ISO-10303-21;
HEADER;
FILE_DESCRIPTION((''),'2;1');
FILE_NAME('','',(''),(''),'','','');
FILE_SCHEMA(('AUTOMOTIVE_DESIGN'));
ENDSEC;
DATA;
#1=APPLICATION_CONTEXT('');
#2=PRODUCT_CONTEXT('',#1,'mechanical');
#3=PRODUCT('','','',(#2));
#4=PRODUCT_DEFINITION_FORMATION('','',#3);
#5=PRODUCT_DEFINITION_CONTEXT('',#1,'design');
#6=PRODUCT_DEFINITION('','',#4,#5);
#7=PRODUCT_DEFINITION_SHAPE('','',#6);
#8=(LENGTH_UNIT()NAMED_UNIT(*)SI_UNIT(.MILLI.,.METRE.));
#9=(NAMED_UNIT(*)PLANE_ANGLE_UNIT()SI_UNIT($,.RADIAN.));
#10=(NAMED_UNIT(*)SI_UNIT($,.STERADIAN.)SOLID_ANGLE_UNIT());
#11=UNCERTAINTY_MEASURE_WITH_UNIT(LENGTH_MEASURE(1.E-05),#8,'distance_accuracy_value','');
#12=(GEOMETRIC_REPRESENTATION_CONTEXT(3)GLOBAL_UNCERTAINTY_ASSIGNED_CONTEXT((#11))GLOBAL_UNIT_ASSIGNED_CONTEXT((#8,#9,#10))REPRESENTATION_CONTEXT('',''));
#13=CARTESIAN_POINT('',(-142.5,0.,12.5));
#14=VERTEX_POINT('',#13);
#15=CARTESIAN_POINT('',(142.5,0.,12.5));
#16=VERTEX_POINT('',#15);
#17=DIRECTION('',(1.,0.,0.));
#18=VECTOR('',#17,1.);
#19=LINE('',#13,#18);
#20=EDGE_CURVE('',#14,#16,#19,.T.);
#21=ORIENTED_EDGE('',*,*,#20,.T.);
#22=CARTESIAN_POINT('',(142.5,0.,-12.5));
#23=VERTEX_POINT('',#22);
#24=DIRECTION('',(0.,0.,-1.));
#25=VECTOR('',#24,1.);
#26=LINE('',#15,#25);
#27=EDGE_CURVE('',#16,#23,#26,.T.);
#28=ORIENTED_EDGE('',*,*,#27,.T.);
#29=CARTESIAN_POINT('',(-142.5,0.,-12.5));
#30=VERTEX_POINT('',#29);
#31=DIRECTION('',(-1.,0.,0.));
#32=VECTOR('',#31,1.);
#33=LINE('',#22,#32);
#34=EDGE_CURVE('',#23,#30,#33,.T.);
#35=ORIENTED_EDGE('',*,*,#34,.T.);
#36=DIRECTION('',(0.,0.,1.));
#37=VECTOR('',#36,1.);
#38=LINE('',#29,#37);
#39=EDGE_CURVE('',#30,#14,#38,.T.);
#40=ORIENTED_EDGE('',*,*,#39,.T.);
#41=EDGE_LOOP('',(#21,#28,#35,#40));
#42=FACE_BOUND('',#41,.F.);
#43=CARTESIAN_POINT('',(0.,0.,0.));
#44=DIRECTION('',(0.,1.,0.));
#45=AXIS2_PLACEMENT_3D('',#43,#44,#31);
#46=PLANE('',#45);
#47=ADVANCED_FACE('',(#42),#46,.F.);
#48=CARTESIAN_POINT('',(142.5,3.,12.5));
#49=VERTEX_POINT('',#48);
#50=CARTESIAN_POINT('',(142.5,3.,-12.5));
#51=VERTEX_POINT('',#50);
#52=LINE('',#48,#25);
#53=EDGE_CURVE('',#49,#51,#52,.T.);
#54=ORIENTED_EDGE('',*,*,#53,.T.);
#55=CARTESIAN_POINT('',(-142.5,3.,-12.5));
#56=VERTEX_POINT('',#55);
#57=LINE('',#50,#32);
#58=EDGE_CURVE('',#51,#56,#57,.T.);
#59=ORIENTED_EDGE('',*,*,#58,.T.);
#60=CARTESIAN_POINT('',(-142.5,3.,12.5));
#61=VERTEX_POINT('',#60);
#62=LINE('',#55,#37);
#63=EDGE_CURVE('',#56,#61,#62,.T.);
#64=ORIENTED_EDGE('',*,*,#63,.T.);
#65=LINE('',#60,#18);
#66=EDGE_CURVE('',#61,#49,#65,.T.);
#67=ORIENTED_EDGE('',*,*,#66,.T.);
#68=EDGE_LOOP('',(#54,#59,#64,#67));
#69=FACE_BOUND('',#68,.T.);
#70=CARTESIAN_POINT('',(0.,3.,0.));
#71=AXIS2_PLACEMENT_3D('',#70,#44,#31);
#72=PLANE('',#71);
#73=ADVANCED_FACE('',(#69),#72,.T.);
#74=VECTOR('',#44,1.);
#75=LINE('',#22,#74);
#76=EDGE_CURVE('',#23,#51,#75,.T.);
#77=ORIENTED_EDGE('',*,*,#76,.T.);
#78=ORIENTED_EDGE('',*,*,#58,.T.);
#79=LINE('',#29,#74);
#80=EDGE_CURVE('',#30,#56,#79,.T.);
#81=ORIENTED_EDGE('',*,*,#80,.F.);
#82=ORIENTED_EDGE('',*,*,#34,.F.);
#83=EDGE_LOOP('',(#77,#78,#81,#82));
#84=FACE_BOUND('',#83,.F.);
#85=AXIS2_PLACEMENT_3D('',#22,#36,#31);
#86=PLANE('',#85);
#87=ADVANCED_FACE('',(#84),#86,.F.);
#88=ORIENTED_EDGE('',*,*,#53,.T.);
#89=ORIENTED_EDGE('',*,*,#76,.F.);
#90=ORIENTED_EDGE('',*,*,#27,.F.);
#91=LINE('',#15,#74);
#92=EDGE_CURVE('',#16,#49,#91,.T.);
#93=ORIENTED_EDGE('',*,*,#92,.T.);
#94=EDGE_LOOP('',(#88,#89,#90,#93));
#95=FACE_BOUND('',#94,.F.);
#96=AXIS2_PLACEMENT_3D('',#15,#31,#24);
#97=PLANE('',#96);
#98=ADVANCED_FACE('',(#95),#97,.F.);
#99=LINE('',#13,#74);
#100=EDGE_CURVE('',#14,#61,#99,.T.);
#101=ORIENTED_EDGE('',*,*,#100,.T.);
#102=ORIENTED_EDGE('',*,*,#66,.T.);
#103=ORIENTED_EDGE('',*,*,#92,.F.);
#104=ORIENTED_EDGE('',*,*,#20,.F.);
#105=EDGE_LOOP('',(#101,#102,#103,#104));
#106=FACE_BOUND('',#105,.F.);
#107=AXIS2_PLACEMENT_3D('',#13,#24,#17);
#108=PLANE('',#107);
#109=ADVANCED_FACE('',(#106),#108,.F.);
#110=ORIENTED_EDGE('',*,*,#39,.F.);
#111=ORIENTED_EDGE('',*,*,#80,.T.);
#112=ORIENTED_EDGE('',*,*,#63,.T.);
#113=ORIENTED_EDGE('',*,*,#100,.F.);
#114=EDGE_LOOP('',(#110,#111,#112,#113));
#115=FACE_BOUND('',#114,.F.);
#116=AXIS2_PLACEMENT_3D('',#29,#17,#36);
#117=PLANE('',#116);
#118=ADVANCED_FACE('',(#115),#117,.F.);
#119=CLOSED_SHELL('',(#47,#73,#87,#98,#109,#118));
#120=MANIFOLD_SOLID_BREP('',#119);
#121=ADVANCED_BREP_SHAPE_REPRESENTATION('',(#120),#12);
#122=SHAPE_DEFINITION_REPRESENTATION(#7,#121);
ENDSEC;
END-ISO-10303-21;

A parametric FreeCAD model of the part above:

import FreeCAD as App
import Part
import Sketcher
from FreeCAD import Vector
Q = App.Units.Quantity


def add_polygon(sketch, points):
    """Adds a closed chain of lines whose ends are joined by coincident constraints."""
    first, n = sketch.GeometryCount, len(points)
    for a, b in zip(points, points[1:] + points[:1]):
        sketch.addGeometry(Part.LineSegment(App.Vector(*a, 0), App.Vector(*b, 0)), False)
    for i in range(n):
        sketch.addConstraint(Sketcher.Constraint("Coincident", first + i, 2, first + (i + 1) % n, 1))

doc = App.newDocument("Part")
body = doc.addObject("PartDesign::Body", "Body")

sketch1 = body.newObject("Sketcher::SketchObject", "Sketch")
sketch1.AttachmentSupport = (doc.getObject("XZ_Plane"), [""])
sketch1.MapMode = "FlatFace"
add_polygon(sketch1, [(142, 12), (142, -12), (-142, -12), (-142, 12)])
sketch1.addConstraint([
    Sketcher.Constraint("Vertical", 0),
    Sketcher.Constraint("Horizontal", 1),
    Sketcher.Constraint("Vertical", 2),
    Sketcher.Constraint("Horizontal", 3),
    Sketcher.Constraint("Symmetric", 0, 2, 2, 2, -1, 1),
    Sketcher.Constraint("DistanceX", 1, 2, 1, 1, Q("285 mm")),
    Sketcher.Constraint("DistanceY", 0, 2, 0, 1, Q("25 mm")),
])
pad1 = body.newObject("PartDesign::Pad", "Pad")
pad1.Profile = sketch1
pad1.Length = 3
pad1.Reversed = True

doc.recompute()
